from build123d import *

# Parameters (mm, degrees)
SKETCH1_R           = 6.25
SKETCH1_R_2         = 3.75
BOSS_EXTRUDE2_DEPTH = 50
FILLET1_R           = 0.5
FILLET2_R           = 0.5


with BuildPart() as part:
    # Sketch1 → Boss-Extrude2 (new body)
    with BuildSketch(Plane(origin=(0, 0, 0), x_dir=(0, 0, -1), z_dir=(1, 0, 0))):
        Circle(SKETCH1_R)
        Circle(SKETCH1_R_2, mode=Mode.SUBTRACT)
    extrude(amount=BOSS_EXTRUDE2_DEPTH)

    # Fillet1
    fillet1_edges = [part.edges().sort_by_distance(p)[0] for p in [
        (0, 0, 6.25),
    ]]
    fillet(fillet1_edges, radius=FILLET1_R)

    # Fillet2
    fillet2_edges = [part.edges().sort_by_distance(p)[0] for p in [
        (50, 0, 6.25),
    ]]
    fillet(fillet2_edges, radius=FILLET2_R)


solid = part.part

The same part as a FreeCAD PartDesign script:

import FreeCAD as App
import Part
import Sketcher

V = App.Vector


def edges_at(feature, points):
    """Names of the edges that pass closest to the given points."""
    edges = feature.Shape.Edges
    near = lambda p: min(range(len(edges)), key=lambda i: edges[i].distToShape(Part.Vertex(*p))[0])
    return sorted({f"Edge{near(p) + 1}" for p in points})

doc = App.newDocument("Part")
body = doc.addObject("PartDesign::Body", "Body")

# Sketch on YZ plane
sketch1 = body.newObject("Sketcher::SketchObject", "Sketch")
sketch1.AttachmentSupport = (doc.getObject("YZ_Plane"), [""])
sketch1.MapMode = "FlatFace"
sketch1.addGeometry(Part.Circle(V(0, 0, 0), V(0, 0, 1), 6.2), False)
sketch1.addGeometry(Part.Circle(V(0, 0, 0), V(0, 0, 1), 3.8), False)
sketch1.addConstraint(Sketcher.Constraint("Coincident", 0, 3, -1, 1))
sketch1.addConstraint(Sketcher.Constraint("Coincident", 1, 3, -1, 1))
sketch1.addConstraint(Sketcher.Constraint("Diameter", 0, 12.5))
sketch1.addConstraint(Sketcher.Constraint("Diameter", 1, 7.5))
pad1 = body.newObject("PartDesign::Pad", "Pad")
pad1.Profile = sketch1
pad1.Length = 50
doc.recompute()

fillet = body.newObject("PartDesign::Fillet", "Fillet")
fillet.Base = (pad1, edges_at(pad1, [(0, 0, 6.25)]))
fillet.Radius = 0.5
doc.recompute()

fillet2 = body.newObject("PartDesign::Fillet", "Fillet001")
fillet2.Base = (fillet, edges_at(fillet, [(50, 0, 6.25)]))
fillet2.Radius = 0.5

doc.recompute()
